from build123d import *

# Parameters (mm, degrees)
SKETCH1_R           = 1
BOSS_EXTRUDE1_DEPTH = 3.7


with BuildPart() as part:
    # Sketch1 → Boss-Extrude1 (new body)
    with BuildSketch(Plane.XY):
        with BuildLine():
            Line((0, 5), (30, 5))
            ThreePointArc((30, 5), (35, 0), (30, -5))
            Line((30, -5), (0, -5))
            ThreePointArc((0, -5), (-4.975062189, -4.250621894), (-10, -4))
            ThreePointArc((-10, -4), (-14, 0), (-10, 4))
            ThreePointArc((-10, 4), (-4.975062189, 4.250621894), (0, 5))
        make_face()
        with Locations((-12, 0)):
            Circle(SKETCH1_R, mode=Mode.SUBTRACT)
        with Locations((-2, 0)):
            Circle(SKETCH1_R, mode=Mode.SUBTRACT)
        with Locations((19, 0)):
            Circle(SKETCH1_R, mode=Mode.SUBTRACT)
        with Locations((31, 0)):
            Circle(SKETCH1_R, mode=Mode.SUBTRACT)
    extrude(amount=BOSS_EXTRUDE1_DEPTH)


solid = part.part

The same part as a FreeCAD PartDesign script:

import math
import FreeCAD as App
import Part
import Sketcher

V = App.Vector
Q = App.Units.Quantity

doc = App.newDocument("Part")
params = doc.addObject("Spreadsheet::Sheet", "Params")
for row, (alias, value) in enumerate([
    ("sketch1_diameter", "2 mm"),
    ("sketch1_radius", "4 mm"),
    ("sketch1_radius2", "5 mm"),
    ("sketch1_radius3", "50.5 mm"),
    ("sketch1_width", "30 mm"),
    ("pad1_length", "3.7 mm"),
], start=1):
    params.set(f"A{row}", alias)
    params.set(f"B{row}", "=" + value)
    params.setAlias(f"B{row}", alias)

body = doc.addObject("PartDesign::Body", "Body")

# Sketch on XY plane
sketch1 = body.newObject("Sketcher::SketchObject", "Sketch")
sketch1.AttachmentSupport = (doc.getObject("XY_Plane"), [""])
sketch1.MapMode = "FlatFace"
sketch1.addGeometry(Part.LineSegment(V(30, 5, 0), V(0, 5, 0)), False)
sketch1.addGeometry(Part.ArcOfCircle(Part.Circle(V(-10, 54.5, 0), V(0, 0, 1), 50.5), math.radians(-90), math.radians(-78.58)), False)
sketch1.addGeometry(Part.ArcOfCircle(Part.Circle(V(-10, 0, 0), V(0, 0, 1), 4), math.radians(90), math.radians(270)), False)
sketch1.addGeometry(Part.ArcOfCircle(Part.Circle(V(-10, -54.5, 0), V(0, 0, 1), 50.5), math.radians(78.58), math.radians(90)), False)
sketch1.addGeometry(Part.LineSegment(V(0, -5, 0), V(30, -5, 0)), False)
sketch1.addGeometry(Part.ArcOfCircle(Part.Circle(V(30, 0, 0), V(0, 0, 1), 5), math.radians(-90), math.radians(90)), False)
sketch1.addGeometry(Part.Circle(V(31, 0, 0), V(0, 0, 1), 1), False)
sketch1.addGeometry(Part.Circle(V(19, 0, 0), V(0, 0, 1), 1), False)
sketch1.addGeometry(Part.Circle(V(-2, 0, 0), V(0, 0, 1), 1), False)
sketch1.addGeometry(Part.Circle(V(-12, 0, 0), V(0, 0, 1), 1), False)
sketch1.addConstraint(Sketcher.Constraint("Coincident", 0, 2, 1, 2))
sketch1.addConstraint(Sketcher.Constraint("Tangent", 1, 1, 2, 1))
sketch1.addConstraint(Sketcher.Constraint("Tangent", 2, 2, 3, 2))
sketch1.addConstraint(Sketcher.Constraint("Coincident", 3, 1, 4, 1))
sketch1.addConstraint(Sketcher.Constraint("Tangent", 4, 2, 5, 1))
sketch1.addConstraint(Sketcher.Constraint("Tangent", 5, 2, 0, 1))
sketch1.addConstraint(Sketcher.Constraint("Horizontal", 0))
sketch1.addConstraint(Sketcher.Constraint("Horizontal", 4))
sketch1.addConstraint(Sketcher.Constraint("Equal", 1, 3))
sketch1.addConstraint(Sketcher.Constraint("Equal", 6, 7))
sketch1.addConstraint(Sketcher.Constraint("Equal", 7, 8))
sketch1.addConstraint(Sketcher.Constraint("Equal", 8, 9))
sketch1.addConstraint(Sketcher.Constraint("Symmetric", 0, 2, 3, 1, -1, 1))
sketch1.addConstraint(Sketcher.Constraint("Symmetric", 1, 3, 3, 3, -1))
sketch1.addConstraint(Sketcher.Constraint("PointOnObject", 6, 3, -1))
sketch1.addConstraint(Sketcher.Constraint("PointOnObject", 7, 3, -1))
sketch1.addConstraint(Sketcher.Constraint("PointOnObject", 8, 3, -1))
sketch1.addConstraint(Sketcher.Constraint("PointOnObject", 9, 3, -1))
sketch1.addConstraint(Sketcher.Constraint("Vertical", 1, 3, 2, 3))
sketch1.addConstraint(Sketcher.Constraint("Diameter", 6, Q("2 mm")))
sketch1.addConstraint(Sketcher.Constraint("Radius", 2, Q("4 mm")))
sketch1.addConstraint(Sketcher.Constraint("Radius", 5, Q("5 mm")))
sketch1.addConstraint(Sketcher.Constraint("Radius", 1, Q("50.5 mm")))
sketch1.addConstraint(Sketcher.Constraint("DistanceX", 0, 2, 0, 1, Q("30 mm")))
sketch1.addConstraint(Sketcher.Constraint("DistanceX", -1, 1, 6, 3, Q("31 mm")))
sketch1.addConstraint(Sketcher.Constraint("DistanceX", -1, 1, 7, 3, Q("19 mm")))
sketch1.addConstraint(Sketcher.Constraint("DistanceX", 8, 3, -1, 1, Q("2 mm")))
sketch1.addConstraint(Sketcher.Constraint("DistanceX", 9, 3, -1, 1, Q("12 mm")))
sketch1.setExpression("Constraints[19]", "Params.sketch1_diameter")
sketch1.setExpression("Constraints[20]", "Params.sketch1_radius")
sketch1.setExpression("Constraints[21]", "Params.sketch1_radius2")
sketch1.setExpression("Constraints[22]", "Params.sketch1_radius3")
sketch1.setExpression("Constraints[23]", "Params.sketch1_width")
pad1 = body.newObject("PartDesign::Pad", "Pad")
pad1.Profile = sketch1
pad1.setExpression("Length", "Params.pad1_length")

doc.recompute()
